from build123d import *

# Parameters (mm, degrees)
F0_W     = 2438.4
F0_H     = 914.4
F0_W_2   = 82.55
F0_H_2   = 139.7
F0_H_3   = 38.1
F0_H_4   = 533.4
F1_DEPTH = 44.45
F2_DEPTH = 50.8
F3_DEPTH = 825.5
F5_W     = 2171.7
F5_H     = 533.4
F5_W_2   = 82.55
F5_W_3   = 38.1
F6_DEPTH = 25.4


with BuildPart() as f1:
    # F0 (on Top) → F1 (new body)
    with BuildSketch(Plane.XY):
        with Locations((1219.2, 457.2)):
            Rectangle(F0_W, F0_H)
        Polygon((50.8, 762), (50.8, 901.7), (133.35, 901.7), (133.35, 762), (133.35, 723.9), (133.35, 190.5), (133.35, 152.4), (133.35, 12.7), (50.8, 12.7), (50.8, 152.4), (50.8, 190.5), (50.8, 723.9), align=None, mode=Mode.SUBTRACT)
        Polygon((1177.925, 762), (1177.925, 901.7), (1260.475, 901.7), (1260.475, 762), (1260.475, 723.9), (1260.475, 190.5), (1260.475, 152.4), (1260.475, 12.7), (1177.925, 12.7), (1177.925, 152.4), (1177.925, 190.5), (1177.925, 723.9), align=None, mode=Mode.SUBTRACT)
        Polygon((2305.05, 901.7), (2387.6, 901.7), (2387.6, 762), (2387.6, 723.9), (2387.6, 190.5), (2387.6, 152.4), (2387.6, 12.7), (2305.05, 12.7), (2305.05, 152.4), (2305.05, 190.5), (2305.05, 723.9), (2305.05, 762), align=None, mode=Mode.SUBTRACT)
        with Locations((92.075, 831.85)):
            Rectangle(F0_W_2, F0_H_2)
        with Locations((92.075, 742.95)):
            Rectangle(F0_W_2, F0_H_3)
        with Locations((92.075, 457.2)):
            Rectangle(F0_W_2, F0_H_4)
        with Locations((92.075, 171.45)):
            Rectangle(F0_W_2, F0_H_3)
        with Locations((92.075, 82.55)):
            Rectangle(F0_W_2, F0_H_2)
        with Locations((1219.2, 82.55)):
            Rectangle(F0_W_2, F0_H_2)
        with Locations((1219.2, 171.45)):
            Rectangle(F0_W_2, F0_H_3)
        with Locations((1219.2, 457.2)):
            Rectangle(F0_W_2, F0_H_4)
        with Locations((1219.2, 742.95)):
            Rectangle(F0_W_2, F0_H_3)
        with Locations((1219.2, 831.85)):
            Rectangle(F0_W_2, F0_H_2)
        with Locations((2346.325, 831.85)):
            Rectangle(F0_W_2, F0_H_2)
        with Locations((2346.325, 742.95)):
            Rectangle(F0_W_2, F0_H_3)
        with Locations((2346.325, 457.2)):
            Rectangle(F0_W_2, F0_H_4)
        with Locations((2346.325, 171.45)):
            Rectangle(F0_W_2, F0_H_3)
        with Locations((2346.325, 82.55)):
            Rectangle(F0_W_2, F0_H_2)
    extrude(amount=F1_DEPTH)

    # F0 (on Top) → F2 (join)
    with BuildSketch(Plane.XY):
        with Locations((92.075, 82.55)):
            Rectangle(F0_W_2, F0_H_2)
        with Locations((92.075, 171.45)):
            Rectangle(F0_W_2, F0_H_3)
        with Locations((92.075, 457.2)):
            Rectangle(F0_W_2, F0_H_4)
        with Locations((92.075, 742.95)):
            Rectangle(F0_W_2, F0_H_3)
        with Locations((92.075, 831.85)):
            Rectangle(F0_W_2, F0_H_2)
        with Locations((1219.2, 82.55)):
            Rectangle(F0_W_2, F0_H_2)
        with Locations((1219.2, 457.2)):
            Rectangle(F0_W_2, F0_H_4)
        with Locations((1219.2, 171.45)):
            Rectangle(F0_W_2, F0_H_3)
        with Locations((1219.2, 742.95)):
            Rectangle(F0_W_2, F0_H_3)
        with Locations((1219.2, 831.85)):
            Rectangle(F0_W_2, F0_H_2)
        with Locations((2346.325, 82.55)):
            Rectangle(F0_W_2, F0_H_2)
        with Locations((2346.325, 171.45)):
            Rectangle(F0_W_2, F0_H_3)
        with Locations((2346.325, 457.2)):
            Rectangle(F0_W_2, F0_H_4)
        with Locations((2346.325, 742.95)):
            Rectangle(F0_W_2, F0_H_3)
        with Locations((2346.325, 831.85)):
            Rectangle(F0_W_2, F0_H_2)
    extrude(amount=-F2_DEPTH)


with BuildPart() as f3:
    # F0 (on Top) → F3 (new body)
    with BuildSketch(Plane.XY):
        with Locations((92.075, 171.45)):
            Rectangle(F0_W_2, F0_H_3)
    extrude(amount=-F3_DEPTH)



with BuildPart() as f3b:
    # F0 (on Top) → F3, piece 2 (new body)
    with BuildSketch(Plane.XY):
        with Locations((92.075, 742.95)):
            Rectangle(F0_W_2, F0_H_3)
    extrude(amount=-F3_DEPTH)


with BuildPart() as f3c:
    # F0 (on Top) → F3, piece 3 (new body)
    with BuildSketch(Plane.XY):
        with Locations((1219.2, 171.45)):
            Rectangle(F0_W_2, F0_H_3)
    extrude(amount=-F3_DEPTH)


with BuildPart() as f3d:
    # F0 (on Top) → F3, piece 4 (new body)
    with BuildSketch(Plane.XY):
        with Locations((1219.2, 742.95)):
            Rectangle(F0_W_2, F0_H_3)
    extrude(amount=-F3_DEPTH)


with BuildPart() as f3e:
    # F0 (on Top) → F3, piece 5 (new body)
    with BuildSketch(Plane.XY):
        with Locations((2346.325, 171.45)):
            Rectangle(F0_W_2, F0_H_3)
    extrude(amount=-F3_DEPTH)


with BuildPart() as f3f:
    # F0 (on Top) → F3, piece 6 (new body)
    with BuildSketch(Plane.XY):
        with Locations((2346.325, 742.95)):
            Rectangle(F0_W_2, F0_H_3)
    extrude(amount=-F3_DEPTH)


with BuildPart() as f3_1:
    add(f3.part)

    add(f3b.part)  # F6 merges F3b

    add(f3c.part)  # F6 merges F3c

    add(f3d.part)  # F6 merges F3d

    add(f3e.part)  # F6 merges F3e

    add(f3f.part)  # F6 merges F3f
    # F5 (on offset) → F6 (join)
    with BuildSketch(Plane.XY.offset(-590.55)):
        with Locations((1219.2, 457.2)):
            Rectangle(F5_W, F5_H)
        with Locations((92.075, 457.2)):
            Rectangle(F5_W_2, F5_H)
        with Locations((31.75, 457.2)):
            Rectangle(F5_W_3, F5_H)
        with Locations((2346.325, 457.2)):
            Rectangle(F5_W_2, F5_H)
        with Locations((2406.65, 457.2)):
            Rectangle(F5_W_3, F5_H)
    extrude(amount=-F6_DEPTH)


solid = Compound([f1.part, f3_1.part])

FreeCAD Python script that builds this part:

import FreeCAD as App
import Part
import Sketcher
Q = App.Units.Quantity


def add_polygon(sketch, points):
    """Adds a closed chain of lines whose ends are joined by coincident constraints."""
    first, n = sketch.GeometryCount, len(points)
    for a, b in zip(points, points[1:] + points[:1]):
        sketch.addGeometry(Part.LineSegment(App.Vector(*a, 0), App.Vector(*b, 0)), False)
    for i in range(n):
        sketch.addConstraint(Sketcher.Constraint("Coincident", first + i, 2, first + (i + 1) % n, 1))

doc = App.newDocument("Part")
params = doc.addObject("Spreadsheet::Sheet", "Params")
for row, (alias, value) in enumerate([
    ("sketch1_width", "96 in"),
    ("sketch1_height", "36 in"),
    ("pad1_length", "1.75 in"),
    ("sketch2_height", "35 in"),
    ("sketch2_width", "3.25 in"),
    ("pad2_length", "2 in"),
    ("sketch3_height", "1.5 in"),
    ("sketch3_width", "3.25 in"),
    ("pad3_length", "32.5 in"),
    ("sketch4_height", "1.5 in"),
    ("sketch4_width", "3.25 in"),
    ("pad4_length", "32.5 in"),
    ("sketch5_height", "1.5 in"),
    ("sketch5_width", "3.25 in"),
    ("pad5_length", "32.5 in"),
    ("sketch6_height", "1.5 in"),
    ("sketch6_width", "3.25 in"),
    ("pad6_length", "32.5 in"),
    ("sketch7_height", "1.5 in"),
    ("sketch7_width", "3.25 in"),
    ("pad7_length", "32.5 in"),
    ("sketch8_height", "1.5 in"),
    ("sketch8_width", "3.25 in"),
    ("pad8_length", "32.5 in"),
    ("sketch9_width", "95 in"),
    ("sketch9_height", "21 in"),
    ("pad9_length", "1 in"),
], start=1):
    params.set(f"A{row}", alias)
    params.set(f"B{row}", "=" + value)
    params.setAlias(f"B{row}", alias)

body = doc.addObject("PartDesign::Body", "Body")

# Sketch on XY plane
sketch1 = doc.addObject("Sketcher::SketchObject", "Sketch")
body.addObject(sketch1)
sketch1.AttachmentSupport = (doc.XY_Plane, [""])
sketch1.MapMode = "FlatFace"
add_polygon(sketch1, [(0, 914), (0, 0), (2438, 0), (2438, 914)])  # lines 0-3
sketch1.addConstraint([
    Sketcher.Constraint("Vertical", 0),
    Sketcher.Constraint("Horizontal", 1),
    Sketcher.Constraint("Vertical", 2),
    Sketcher.Constraint("Horizontal", 3),
    Sketcher.Constraint("Coincident", 0, 2, -1, 1),
    Sketcher.Constraint("DistanceX", 1, 1, 1, 2, Q("96 in")),
    Sketcher.Constraint("DistanceY", 0, 2, 0, 1, Q("36 in")),
])
sketch1.setExpression("Constraints[9]", "Params.sketch1_width")
sketch1.setExpression("Constraints[10]", "Params.sketch1_height")
pad1 = doc.addObject("PartDesign::Pad", "Pad")
body.addObject(pad1)
pad1.Profile = sketch1
pad1.setExpression("Length", "Params.pad1_length")

# Sketch on XY plane
sketch2 = doc.addObject("Sketcher::SketchObject", "Sketch001")
body.addObject(sketch2)
sketch2.AttachmentSupport = (doc.XY_Plane, [""])
sketch2.MapMode = "FlatFace"
add_polygon(sketch2, [(51, 13), (133, 13), (133, 902), (51, 902)])  # lines 0-3
add_polygon(sketch2, [(1178, 13), (1260, 13), (1260, 902), (1178, 902)])  # lines 4-7
add_polygon(sketch2, [(2305, 13), (2388, 13), (2388, 902), (2305, 902)])  # lines 8-11
sketch2.addConstraint([
    Sketcher.Constraint("Horizontal", 0),
    Sketcher.Constraint("Vertical", 1),
    Sketcher.Constraint("Horizontal", 2),
    Sketcher.Constraint("Vertical", 3),
    Sketcher.Constraint("Horizontal", 4),
    Sketcher.Constraint("Vertical", 5),
    Sketcher.Constraint("Horizontal", 6),
    Sketcher.Constraint("Vertical", 7),
    Sketcher.Constraint("Horizontal", 8),
    Sketcher.Constraint("Vertical", 9),
    Sketcher.Constraint("Horizontal", 10),
    Sketcher.Constraint("Vertical", 11),
    Sketcher.Constraint("Horizontal", 3, 2, 4, 2),
    Sketcher.Constraint("Horizontal", 2, 2, 5, 2),
    Sketcher.Constraint("Horizontal", 7, 2, 8, 2),
    Sketcher.Constraint("Horizontal", 6, 2, 9, 2),
    Sketcher.Constraint("Equal", 2, 4),
    Sketcher.Constraint("Equal", 6, 8),
    Sketcher.Constraint("DistanceY", 1, 1, 1, 2, Q("35 in")),
    Sketcher.Constraint("DistanceX", -1, 1, 2, 2, Q("2 in")),
    Sketcher.Constraint("DistanceX", -1, 1, 8, 2, Q("94 in")),
    Sketcher.Constraint("DistanceX", 0, 1, 0, 2, Q("3.25 in")),
    Sketcher.Constraint("DistanceY", -1, 1, 0, 2, Q("0.5 in")),
    Sketcher.Constraint("DistanceX", -1, 1, 4, 2, Q("49.625 in")),
])
sketch2.setExpression("Constraints[30]", "Params.sketch2_height")
sketch2.setExpression("Constraints[33]", "Params.sketch2_width")
pad2 = doc.addObject("PartDesign::Pad", "Pad001")
body.addObject(pad2)
pad2.Profile = sketch2
pad2.setExpression("Length", "Params.pad2_length")
pad2.Reversed = True
body2 = doc.addObject("PartDesign::Body", "Body001")

# Sketch on XY plane
sketch3 = doc.addObject("Sketcher::SketchObject", "Sketch002")
body2.addObject(sketch3)
sketch3.AttachmentSupport = (doc.getObject("XY_Plane001"), [""])
sketch3.MapMode = "FlatFace"
add_polygon(sketch3, [(51, 190), (51, 152), (133, 152), (133, 190)])  # lines 0-3
sketch3.addConstraint([
    Sketcher.Constraint("Vertical", 0),
    Sketcher.Constraint("Horizontal", 1),
    Sketcher.Constraint("Vertical", 2),
    Sketcher.Constraint("Horizontal", 3),
    Sketcher.Constraint("DistanceY", 0, 2, 0, 1, Q("1.5 in")),
    Sketcher.Constraint("DistanceX", -1, 1, 0, 2, Q("2 in")),
    Sketcher.Constraint("DistanceY", -1, 1, 0, 2, Q("6 in")),
    Sketcher.Constraint("DistanceX", 1, 1, 1, 2, Q("3.25 in")),
])
sketch3.setExpression("Constraints[8]", "Params.sketch3_height")
sketch3.setExpression("Constraints[11]", "Params.sketch3_width")
pad3 = doc.addObject("PartDesign::Pad", "Pad002")
body2.addObject(pad3)
pad3.Profile = sketch3
pad3.setExpression("Length", "Params.pad3_length")
pad3.Reversed = True
body3 = doc.addObject("PartDesign::Body", "Body002")

# Sketch on XY plane
sketch4 = doc.addObject("Sketcher::SketchObject", "Sketch003")
body3.addObject(sketch4)
sketch4.AttachmentSupport = (doc.getObject("XY_Plane002"), [""])
sketch4.MapMode = "FlatFace"
add_polygon(sketch4, [(51, 762), (51, 724), (133, 724), (133, 762)])  # lines 0-3
sketch4.addConstraint([
    Sketcher.Constraint("Vertical", 0),
    Sketcher.Constraint("Horizontal", 1),
    Sketcher.Constraint("Vertical", 2),
    Sketcher.Constraint("Horizontal", 3),
    Sketcher.Constraint("DistanceY", 0, 2, 0, 1, Q("1.5 in")),
    Sketcher.Constraint("DistanceX", -1, 1, 0, 2, Q("2 in")),
    Sketcher.Constraint("DistanceY", -1, 1, 2, 2, Q("30 in")),
    Sketcher.Constraint("DistanceX", 1, 1, 1, 2, Q("3.25 in")),
])
sketch4.setExpression("Constraints[8]", "Params.sketch4_height")
sketch4.setExpression("Constraints[11]", "Params.sketch4_width")
pad4 = doc.addObject("PartDesign::Pad", "Pad003")
body3.addObject(pad4)
pad4.Profile = sketch4
pad4.setExpression("Length", "Params.pad4_length")
pad4.Reversed = True
body4 = doc.addObject("PartDesign::Body", "Body003")

# Sketch on XY plane
sketch5 = doc.addObject("Sketcher::SketchObject", "Sketch004")
body4.addObject(sketch5)
sketch5.AttachmentSupport = (doc.getObject("XY_Plane003"), [""])
sketch5.MapMode = "FlatFace"
add_polygon(sketch5, [(1178, 190), (1178, 152), (1260, 152), (1260, 190)])  # lines 0-3
sketch5.addConstraint([
    Sketcher.Constraint("Vertical", 0),
    Sketcher.Constraint("Horizontal", 1),
    Sketcher.Constraint("Vertical", 2),
    Sketcher.Constraint("Horizontal", 3),
    Sketcher.Constraint("DistanceY", 0, 2, 0, 1, Q("1.5 in")),
    Sketcher.Constraint("DistanceY", -1, 1, 0, 2, Q("6 in")),
    Sketcher.Constraint("DistanceX", 1, 1, 1, 2, Q("3.25 in")),
    Sketcher.Constraint("DistanceX", -1, 1, 0, 2, Q("46.375 in")),
])
sketch5.setExpression("Constraints[8]", "Params.sketch5_height")
sketch5.setExpression("Constraints[10]", "Params.sketch5_width")
pad5 = doc.addObject("PartDesign::Pad", "Pad004")
body4.addObject(pad5)
pad5.Profile = sketch5
pad5.setExpression("Length", "Params.pad5_length")
pad5.Reversed = True
body5 = doc.addObject("PartDesign::Body", "Body004")

# Sketch on XY plane
sketch6 = doc.addObject("Sketcher::SketchObject", "Sketch005")
body5.addObject(sketch6)
sketch6.AttachmentSupport = (doc.getObject("XY_Plane004"), [""])
sketch6.MapMode = "FlatFace"
add_polygon(sketch6, [(1178, 762), (1178, 724), (1260, 724), (1260, 762)])  # lines 0-3
sketch6.addConstraint([
    Sketcher.Constraint("Vertical", 0),
    Sketcher.Constraint("Horizontal", 1),
    Sketcher.Constraint("Vertical", 2),
    Sketcher.Constraint("Horizontal", 3),
    Sketcher.Constraint("DistanceY", 0, 2, 0, 1, Q("1.5 in")),
    Sketcher.Constraint("DistanceY", -1, 1, 2, 2, Q("30 in")),
    Sketcher.Constraint("DistanceX", 1, 1, 1, 2, Q("3.25 in")),
    Sketcher.Constraint("DistanceX", -1, 1, 0, 2, Q("46.375 in")),
])
sketch6.setExpression("Constraints[8]", "Params.sketch6_height")
sketch6.setExpression("Constraints[10]", "Params.sketch6_width")
pad6 = doc.addObject("PartDesign::Pad", "Pad005")
body5.addObject(pad6)
pad6.Profile = sketch6
pad6.setExpression("Length", "Params.pad6_length")
pad6.Reversed = True
body6 = doc.addObject("PartDesign::Body", "Body005")

# Sketch on XY plane
sketch7 = doc.addObject("Sketcher::SketchObject", "Sketch006")
body6.addObject(sketch7)
sketch7.AttachmentSupport = (doc.getObject("XY_Plane005"), [""])
sketch7.MapMode = "FlatFace"
add_polygon(sketch7, [(2305, 190), (2305, 152), (2388, 152), (2388, 190)])  # lines 0-3
sketch7.addConstraint([
    Sketcher.Constraint("Vertical", 0),
    Sketcher.Constraint("Horizontal", 1),
    Sketcher.Constraint("Vertical", 2),
    Sketcher.Constraint("Horizontal", 3),
    Sketcher.Constraint("DistanceY", 0, 2, 0, 1, Q("1.5 in")),
    Sketcher.Constraint("DistanceY", -1, 1, 0, 2, Q("6 in")),
    Sketcher.Constraint("DistanceX", -1, 1, 1, 2, Q("94 in")),
    Sketcher.Constraint("DistanceX", 1, 1, 1, 2, Q("3.25 in")),
])
sketch7.setExpression("Constraints[8]", "Params.sketch7_height")
sketch7.setExpression("Constraints[11]", "Params.sketch7_width")
pad7 = doc.addObject("PartDesign::Pad", "Pad006")
body6.addObject(pad7)
pad7.Profile = sketch7
pad7.setExpression("Length", "Params.pad7_length")
pad7.Reversed = True
body7 = doc.addObject("PartDesign::Body", "Body006")

# Sketch on XY plane
sketch8 = doc.addObject("Sketcher::SketchObject", "Sketch007")
body7.addObject(sketch8)
sketch8.AttachmentSupport = (doc.getObject("XY_Plane006"), [""])
sketch8.MapMode = "FlatFace"
add_polygon(sketch8, [(2305, 762), (2305, 724), (2388, 724), (2388, 762)])  # lines 0-3
sketch8.addConstraint([
    Sketcher.Constraint("Vertical", 0),
    Sketcher.Constraint("Horizontal", 1),
    Sketcher.Constraint("Vertical", 2),
    Sketcher.Constraint("Horizontal", 3),
    Sketcher.Constraint("DistanceY", 0, 2, 0, 1, Q("1.5 in")),
    Sketcher.Constraint("DistanceX", -1, 1, 1, 2, Q("94 in")),
    Sketcher.Constraint("DistanceY", -1, 1, 2, 2, Q("30 in")),
    Sketcher.Constraint("DistanceX", 1, 1, 1, 2, Q("3.25 in")),
])
sketch8.setExpression("Constraints[8]", "Params.sketch8_height")
sketch8.setExpression("Constraints[11]", "Params.sketch8_width")
pad8 = doc.addObject("PartDesign::Pad", "Pad007")
body7.addObject(pad8)
pad8.Profile = sketch8
pad8.setExpression("Length", "Params.pad8_length")
pad8.Reversed = True
body2.AllowCompound = True
doc.recompute()

boolean = doc.addObject("PartDesign::Boolean", "Boolean")
body2.addObject(boolean)
boolean.Type = "Fuse"
boolean.addObjects([body3])
doc.recompute()

boolean2 = doc.addObject("PartDesign::Boolean", "Boolean001")
body2.addObject(boolean2)
boolean2.Type = "Fuse"
boolean2.addObjects([body4])
doc.recompute()

boolean3 = doc.addObject("PartDesign::Boolean", "Boolean002")
body2.addObject(boolean3)
boolean3.Type = "Fuse"
boolean3.addObjects([body5])
doc.recompute()

boolean4 = doc.addObject("PartDesign::Boolean", "Boolean003")
body2.addObject(boolean4)
boolean4.Type = "Fuse"
boolean4.addObjects([body6])
doc.recompute()

boolean5 = doc.addObject("PartDesign::Boolean", "Boolean004")
body2.addObject(boolean5)
boolean5.Type = "Fuse"
boolean5.addObjects([body7])

# Sketch on XY plane
sketch9 = doc.addObject("Sketcher::SketchObject", "Sketch008")
body2.addObject(sketch9)
sketch9.AttachmentSupport = (doc.getObject("XY_Plane001"), [""])
sketch9.MapMode = "FlatFace"
sketch9.AttachmentOffset = App.Placement(App.Vector(0, 0, -23.25 * 25.4), App.Rotation())
add_polygon(sketch9, [(13, 724), (13, 190), (2426, 190), (2426, 724)])  # lines 0-3
sketch9.addConstraint([
    Sketcher.Constraint("Vertical", 0),
    Sketcher.Constraint("Horizontal", 1),
    Sketcher.Constraint("Vertical", 2),
    Sketcher.Constraint("Horizontal", 3),
    Sketcher.Constraint("DistanceX", 1, 1, 1, 2, Q("95 in")),
    Sketcher.Constraint("DistanceY", 0, 2, 0, 1, Q("21 in")),
    Sketcher.Constraint("DistanceX", -1, 1, 0, 2, Q("0.5 in")),
    Sketcher.Constraint("DistanceY", -1, 1, 0, 2, Q("7.5 in")),
])
sketch9.setExpression("Constraints[8]", "Params.sketch9_width")
sketch9.setExpression("Constraints[9]", "Params.sketch9_height")
pad9 = doc.addObject("PartDesign::Pad", "Pad008")
body2.addObject(pad9)
pad9.Profile = sketch9
pad9.setExpression("Length", "Params.pad9_length")
pad9.Reversed = True

doc.recompute()
